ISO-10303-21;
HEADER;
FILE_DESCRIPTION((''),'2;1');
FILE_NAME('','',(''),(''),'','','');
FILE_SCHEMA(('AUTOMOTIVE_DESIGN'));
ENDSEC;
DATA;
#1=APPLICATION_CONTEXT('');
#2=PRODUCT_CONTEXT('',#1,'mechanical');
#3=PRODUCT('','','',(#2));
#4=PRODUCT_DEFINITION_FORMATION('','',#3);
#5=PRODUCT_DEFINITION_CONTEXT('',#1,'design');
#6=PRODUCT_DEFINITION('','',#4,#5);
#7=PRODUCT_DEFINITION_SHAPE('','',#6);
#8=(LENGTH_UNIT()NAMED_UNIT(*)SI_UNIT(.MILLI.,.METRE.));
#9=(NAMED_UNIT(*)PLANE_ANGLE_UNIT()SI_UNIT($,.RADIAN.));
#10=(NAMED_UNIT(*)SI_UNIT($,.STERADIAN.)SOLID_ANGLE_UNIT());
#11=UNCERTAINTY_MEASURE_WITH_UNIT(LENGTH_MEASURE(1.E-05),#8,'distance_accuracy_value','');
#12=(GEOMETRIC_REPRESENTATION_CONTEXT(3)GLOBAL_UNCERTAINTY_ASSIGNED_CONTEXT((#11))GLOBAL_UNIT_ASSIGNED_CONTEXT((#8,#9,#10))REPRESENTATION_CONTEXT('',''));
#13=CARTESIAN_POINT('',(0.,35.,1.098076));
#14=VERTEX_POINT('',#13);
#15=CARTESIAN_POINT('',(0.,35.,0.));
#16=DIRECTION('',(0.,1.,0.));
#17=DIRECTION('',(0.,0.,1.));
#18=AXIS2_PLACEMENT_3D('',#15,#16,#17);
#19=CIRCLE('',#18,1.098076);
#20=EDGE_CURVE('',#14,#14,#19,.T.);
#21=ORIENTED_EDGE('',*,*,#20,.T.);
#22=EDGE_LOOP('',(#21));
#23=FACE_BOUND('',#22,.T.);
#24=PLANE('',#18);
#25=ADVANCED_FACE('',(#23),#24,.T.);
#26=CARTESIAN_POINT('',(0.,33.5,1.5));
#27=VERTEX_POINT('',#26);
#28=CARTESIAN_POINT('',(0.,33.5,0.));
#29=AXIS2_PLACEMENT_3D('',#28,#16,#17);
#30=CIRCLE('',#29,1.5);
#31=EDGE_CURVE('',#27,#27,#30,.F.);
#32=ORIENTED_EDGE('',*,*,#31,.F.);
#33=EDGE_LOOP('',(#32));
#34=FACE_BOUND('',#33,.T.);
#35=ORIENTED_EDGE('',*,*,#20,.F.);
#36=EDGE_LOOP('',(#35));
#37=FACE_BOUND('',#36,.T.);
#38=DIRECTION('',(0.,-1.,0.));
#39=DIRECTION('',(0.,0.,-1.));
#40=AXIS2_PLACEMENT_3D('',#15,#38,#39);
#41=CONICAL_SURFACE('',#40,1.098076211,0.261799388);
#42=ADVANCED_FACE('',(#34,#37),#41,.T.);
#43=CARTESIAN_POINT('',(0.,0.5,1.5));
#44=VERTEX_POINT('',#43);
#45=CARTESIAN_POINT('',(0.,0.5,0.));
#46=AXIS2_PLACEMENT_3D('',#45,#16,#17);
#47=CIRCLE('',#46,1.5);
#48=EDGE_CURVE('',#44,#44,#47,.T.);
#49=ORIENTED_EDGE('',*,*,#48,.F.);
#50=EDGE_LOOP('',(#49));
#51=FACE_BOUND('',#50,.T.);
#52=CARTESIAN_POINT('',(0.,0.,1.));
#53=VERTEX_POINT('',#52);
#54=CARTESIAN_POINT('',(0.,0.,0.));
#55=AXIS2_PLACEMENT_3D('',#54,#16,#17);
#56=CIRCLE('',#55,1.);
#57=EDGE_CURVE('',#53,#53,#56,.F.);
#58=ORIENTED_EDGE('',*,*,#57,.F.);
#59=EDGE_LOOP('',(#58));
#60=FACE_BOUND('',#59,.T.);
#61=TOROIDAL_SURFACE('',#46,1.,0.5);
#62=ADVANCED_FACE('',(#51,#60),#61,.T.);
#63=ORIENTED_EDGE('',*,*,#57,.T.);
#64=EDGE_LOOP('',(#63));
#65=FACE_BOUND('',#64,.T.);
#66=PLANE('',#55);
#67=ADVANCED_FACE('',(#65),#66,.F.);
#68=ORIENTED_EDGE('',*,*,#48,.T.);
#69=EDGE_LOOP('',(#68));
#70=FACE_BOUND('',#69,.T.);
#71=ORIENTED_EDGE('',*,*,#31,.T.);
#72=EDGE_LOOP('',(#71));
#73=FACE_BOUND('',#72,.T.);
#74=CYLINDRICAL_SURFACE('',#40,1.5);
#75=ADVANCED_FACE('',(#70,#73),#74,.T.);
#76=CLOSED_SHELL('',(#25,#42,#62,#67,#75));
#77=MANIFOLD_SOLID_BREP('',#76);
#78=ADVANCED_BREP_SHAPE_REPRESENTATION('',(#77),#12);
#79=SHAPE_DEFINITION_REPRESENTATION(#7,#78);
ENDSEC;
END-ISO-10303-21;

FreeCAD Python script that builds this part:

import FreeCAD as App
import Part
import Sketcher

V = App.Vector


def edges_at(feature, points):
    """Names of the edges that pass closest to the given points."""
    edges = feature.Shape.Edges
    near = lambda p: min(range(len(edges)), key=lambda i: edges[i].distToShape(Part.Vertex(*p))[0])
    return sorted({f"Edge{near(p) + 1}" for p in points})

doc = App.newDocument("Part")
body = doc.addObject("PartDesign::Body", "Body")

# Sketch on XZ plane
sketch1 = body.newObject("Sketcher::SketchObject", "Sketch")
sketch1.AttachmentSupport = (doc.getObject("XZ_Plane"), [""])
sketch1.MapMode = "FlatFace"
sketch1.addGeometry(Part.Circle(V(0, 0, 0), V(0, 0, 1), 1.5), False)
sketch1.addConstraint(Sketcher.Constraint("Coincident", 0, 3, -1, 1))
sketch1.addConstraint(Sketcher.Constraint("Diameter", 0, 3.0))
pad1 = body.newObject("PartDesign::Pad", "Pad")
pad1.Profile = sketch1
pad1.Length = 35
pad1.Reversed = True
doc.recompute()

chamfer = body.newObject("PartDesign::Chamfer", "Chamfer")
chamfer.Base = (pad1, edges_at(pad1, [(0, 35, -1.5)]))
chamfer.ChamferType = "Two distances"
chamfer.Size = 1.5
chamfer.Size2 = 0.401924
doc.recompute()

fillet = body.newObject("PartDesign::Fillet", "Fillet")
fillet.Base = (chamfer, edges_at(chamfer, [(0, 0, -1.5)]))
fillet.Radius = 0.5

doc.recompute()
